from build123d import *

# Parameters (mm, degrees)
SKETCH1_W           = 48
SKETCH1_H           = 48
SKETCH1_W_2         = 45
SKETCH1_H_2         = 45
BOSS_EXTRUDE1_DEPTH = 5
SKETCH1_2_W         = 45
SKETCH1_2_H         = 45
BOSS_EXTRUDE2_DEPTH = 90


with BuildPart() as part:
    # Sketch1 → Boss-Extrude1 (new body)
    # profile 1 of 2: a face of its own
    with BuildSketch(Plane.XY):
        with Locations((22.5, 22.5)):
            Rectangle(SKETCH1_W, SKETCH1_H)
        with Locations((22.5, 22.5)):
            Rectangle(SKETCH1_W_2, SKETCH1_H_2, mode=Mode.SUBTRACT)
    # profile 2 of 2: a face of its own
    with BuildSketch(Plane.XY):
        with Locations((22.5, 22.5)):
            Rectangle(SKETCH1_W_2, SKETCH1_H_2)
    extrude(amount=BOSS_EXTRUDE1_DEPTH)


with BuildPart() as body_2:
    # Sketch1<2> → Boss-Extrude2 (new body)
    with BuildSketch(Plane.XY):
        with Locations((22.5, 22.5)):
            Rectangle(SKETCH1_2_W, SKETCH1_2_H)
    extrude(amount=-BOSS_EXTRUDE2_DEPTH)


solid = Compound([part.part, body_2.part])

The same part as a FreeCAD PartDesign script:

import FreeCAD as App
import Part
import Sketcher
from FreeCAD import Vector


def add_polygon(sketch, points):
    """Adds a closed chain of lines whose ends are joined by coincident constraints."""
    first, n = sketch.GeometryCount, len(points)
    for a, b in zip(points, points[1:] + points[:1]):
        sketch.addGeometry(Part.LineSegment(App.Vector(*a, 0), App.Vector(*b, 0)), False)
    for i in range(n):
        sketch.addConstraint(Sketcher.Constraint("Coincident", first + i, 2, first + (i + 1) % n, 1))

doc = App.newDocument("Part")
body = doc.addObject("PartDesign::Body", "Body")

# Sketch on XY plane
sketch1 = body.newObject("Sketcher::SketchObject", "Sketch")
sketch1.AttachmentSupport = (doc.getObject("XY_Plane"), [""])
sketch1.MapMode = "FlatFace"
add_polygon(sketch1, [(-2, 46), (-2, -2), (46, -2), (46, 46)])  # lines 0-3
sketch1.addConstraint(Sketcher.Constraint("Vertical", 0))
sketch1.addConstraint(Sketcher.Constraint("Horizontal", 1))
sketch1.addConstraint(Sketcher.Constraint("Vertical", 2))
sketch1.addConstraint(Sketcher.Constraint("Horizontal", 3))
sketch1.addConstraint(Sketcher.Constraint("Equal", 3, 0))
sketch1.addConstraint(Sketcher.Constraint("DistanceX", 1, 1, 1, 2, 48.0))
sketch1.addConstraint(Sketcher.Constraint("DistanceX", 0, 2, -1, 1, 1.5))
sketch1.addConstraint(Sketcher.Constraint("DistanceY", 0, 2, -1, 1, 1.5))
pad1 = body.newObject("PartDesign::Pad", "Pad")
pad1.Profile = sketch1
pad1.Length = 5
body2 = doc.addObject("PartDesign::Body", "Body001")

# Sketch on XY plane
sketch2 = body2.newObject("Sketcher::SketchObject", "Sketch001")
sketch2.AttachmentSupport = (doc.getObject("XY_Plane001"), [""])
sketch2.MapMode = "FlatFace"
add_polygon(sketch2, [(0, 45), (0, 0), (45, 0), (45, 45)])  # lines 0-3
sketch2.addConstraint(Sketcher.Constraint("Vertical", 0))
sketch2.addConstraint(Sketcher.Constraint("Horizontal", 1))
sketch2.addConstraint(Sketcher.Constraint("Vertical", 2))
sketch2.addConstraint(Sketcher.Constraint("Horizontal", 3))
sketch2.addConstraint(Sketcher.Constraint("Coincident", 0, 2, -1, 1))
sketch2.addConstraint(Sketcher.Constraint("Equal", 3, 0))
sketch2.addConstraint(Sketcher.Constraint("DistanceX", 1, 1, 1, 2, 45.0))
pad2 = body2.newObject("PartDesign::Pad", "Pad001")
pad2.Profile = sketch2
pad2.Length = 90
pad2.Reversed = True

doc.recompute()
